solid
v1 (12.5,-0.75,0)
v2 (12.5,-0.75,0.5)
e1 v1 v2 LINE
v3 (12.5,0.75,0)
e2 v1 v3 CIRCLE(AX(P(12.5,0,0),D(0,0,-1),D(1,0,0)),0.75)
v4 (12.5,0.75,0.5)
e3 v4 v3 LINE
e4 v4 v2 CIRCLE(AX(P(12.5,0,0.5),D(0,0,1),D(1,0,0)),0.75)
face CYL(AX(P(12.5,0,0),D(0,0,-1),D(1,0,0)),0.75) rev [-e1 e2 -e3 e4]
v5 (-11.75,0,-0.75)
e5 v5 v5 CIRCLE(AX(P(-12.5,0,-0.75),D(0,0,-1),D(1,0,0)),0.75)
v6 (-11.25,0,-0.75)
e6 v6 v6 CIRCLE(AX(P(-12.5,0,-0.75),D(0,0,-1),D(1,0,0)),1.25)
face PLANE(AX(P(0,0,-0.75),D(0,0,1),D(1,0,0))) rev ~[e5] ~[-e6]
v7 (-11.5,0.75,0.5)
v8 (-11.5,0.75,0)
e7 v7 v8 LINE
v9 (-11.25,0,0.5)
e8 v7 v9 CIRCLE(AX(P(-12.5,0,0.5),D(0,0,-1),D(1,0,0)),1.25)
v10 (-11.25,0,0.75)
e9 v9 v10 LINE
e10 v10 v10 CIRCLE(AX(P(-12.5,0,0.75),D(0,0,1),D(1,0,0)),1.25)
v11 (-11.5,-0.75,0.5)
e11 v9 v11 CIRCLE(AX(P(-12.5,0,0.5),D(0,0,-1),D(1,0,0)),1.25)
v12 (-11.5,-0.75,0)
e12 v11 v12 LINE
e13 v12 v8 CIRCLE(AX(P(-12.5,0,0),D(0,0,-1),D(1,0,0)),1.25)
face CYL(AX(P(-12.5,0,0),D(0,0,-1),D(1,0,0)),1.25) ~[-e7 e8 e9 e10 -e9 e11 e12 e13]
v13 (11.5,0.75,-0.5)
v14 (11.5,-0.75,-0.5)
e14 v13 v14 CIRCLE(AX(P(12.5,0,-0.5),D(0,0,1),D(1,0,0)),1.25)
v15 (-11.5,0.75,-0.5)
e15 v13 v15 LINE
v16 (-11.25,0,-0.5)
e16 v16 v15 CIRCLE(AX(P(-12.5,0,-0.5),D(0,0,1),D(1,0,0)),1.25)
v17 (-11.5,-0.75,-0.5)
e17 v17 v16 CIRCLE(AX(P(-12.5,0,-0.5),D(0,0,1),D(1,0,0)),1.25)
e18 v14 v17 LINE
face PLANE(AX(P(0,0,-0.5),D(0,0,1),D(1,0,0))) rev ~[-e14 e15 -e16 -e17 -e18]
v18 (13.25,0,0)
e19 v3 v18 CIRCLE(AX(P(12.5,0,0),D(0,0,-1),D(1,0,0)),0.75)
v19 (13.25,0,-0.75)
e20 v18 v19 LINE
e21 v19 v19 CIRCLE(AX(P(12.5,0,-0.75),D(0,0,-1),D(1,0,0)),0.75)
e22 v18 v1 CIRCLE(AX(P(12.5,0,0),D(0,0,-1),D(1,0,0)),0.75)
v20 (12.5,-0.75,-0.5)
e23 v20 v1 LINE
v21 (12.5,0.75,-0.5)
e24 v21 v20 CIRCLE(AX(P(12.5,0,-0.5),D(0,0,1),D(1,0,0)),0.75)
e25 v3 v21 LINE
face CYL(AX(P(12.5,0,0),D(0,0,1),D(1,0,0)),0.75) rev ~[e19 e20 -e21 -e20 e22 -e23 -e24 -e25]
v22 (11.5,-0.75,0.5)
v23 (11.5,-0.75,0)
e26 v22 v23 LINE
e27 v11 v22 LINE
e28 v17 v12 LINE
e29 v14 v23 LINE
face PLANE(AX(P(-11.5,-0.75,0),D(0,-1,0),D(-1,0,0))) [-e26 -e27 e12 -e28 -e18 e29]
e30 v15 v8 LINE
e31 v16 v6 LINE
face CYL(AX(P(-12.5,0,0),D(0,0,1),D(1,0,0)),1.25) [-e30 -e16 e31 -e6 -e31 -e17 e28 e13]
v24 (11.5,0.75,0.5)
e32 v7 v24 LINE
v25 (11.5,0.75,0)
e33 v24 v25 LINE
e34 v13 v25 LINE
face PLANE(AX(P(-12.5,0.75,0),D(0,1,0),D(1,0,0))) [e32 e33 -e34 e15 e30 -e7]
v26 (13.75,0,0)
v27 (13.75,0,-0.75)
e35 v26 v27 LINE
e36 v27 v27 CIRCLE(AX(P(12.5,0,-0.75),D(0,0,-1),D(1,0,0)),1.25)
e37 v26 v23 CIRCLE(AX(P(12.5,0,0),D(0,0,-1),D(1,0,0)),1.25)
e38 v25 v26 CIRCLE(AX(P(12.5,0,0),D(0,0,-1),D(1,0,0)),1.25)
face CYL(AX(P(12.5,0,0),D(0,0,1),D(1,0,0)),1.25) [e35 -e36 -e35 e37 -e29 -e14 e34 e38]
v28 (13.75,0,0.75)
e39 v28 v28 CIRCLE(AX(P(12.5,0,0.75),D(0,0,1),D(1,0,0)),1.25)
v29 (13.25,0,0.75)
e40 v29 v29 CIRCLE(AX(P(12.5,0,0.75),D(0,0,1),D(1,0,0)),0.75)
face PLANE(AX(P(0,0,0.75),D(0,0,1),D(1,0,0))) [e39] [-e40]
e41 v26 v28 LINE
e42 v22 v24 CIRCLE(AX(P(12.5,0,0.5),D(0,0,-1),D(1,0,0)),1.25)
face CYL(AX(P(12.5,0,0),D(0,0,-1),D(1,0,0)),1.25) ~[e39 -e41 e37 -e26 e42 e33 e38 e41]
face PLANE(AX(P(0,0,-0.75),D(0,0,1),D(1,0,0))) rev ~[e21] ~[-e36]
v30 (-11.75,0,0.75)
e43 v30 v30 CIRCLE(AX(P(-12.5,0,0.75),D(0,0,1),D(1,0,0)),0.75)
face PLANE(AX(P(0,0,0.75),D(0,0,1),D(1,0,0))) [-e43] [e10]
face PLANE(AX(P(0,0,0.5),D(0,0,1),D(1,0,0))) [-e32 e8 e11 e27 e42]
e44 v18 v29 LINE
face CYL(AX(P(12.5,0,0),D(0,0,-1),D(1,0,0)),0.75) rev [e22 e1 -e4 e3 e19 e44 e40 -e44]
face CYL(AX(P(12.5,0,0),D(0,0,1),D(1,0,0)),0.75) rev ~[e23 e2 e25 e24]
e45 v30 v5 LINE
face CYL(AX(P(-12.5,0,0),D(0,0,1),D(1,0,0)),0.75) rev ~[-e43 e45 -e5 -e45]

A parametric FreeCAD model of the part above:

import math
import FreeCAD as App
import Part
import Sketcher

V = App.Vector

doc = App.newDocument("Part")
params = doc.addObject("Spreadsheet::Sheet", "Params")
for row, (alias, value) in enumerate([
    ("sketch1_diameter", "2.5 mm"),
    ("sketch1_diameter2", "1.5 mm"),
    ("pad1_length", "1.5 mm"),
    ("sketch2_radius", "0.75 mm"),
    ("sketch2_width", "25 mm"),
    ("pad2_length", "1 mm"),
], start=1):
    params.set(f"A{row}", alias)
    params.set(f"B{row}", "=" + value)
    params.setAlias(f"B{row}", alias)

body = doc.addObject("PartDesign::Body", "Body")
body.AllowCompound = True

# Sketch on XY plane
sketch1 = doc.addObject("Sketcher::SketchObject", "Sketch")
body.addObject(sketch1)
sketch1.AttachmentSupport = (doc.XY_Plane, [""])
sketch1.MapMode = "FlatFace"
sketch1.addGeometry([
    Part.Circle(V(-12.5, 0, 0), V(0, 0, 1), 1.2),
    Part.Circle(V(-12.5, 0, 0), V(0, 0, 1), 0.8),
    Part.Circle(V(12.5, 0, 0), V(0, 0, 1), 1.2),
    Part.Circle(V(12.5, 0, 0), V(0, 0, 1), 0.8),
], False)
sketch1.addConstraint([
    Sketcher.Constraint("Coincident", 1, 3, 0, 3),
    Sketcher.Constraint("Coincident", 3, 3, 2, 3),
    Sketcher.Constraint("Equal", 0, 2),
    Sketcher.Constraint("Equal", 1, 3),
    Sketcher.Constraint("Symmetric", 0, 3, 2, 3, -1, 1),
    Sketcher.Constraint("PointOnObject", 0, 3, -1),
    Sketcher.Constraint("Diameter", 0, 2.5),
    Sketcher.Constraint("Diameter", 1, 1.5),
    Sketcher.Constraint("DistanceX", 0, 3, 2, 3, 25.0),
])
sketch1.setExpression("Constraints[6]", "Params.sketch1_diameter")
sketch1.setExpression("Constraints[7]", "Params.sketch1_diameter2")
pad1 = doc.addObject("PartDesign::Pad", "Pad")
body.addObject(pad1)
pad1.Profile = sketch1
pad1.setExpression("Length", "Params.pad1_length")
pad1.Midplane = True

# Sketch on XY plane
sketch2 = doc.addObject("Sketcher::SketchObject", "Sketch001")
body.addObject(sketch2)
sketch2.AttachmentSupport = (doc.XY_Plane, [""])
sketch2.MapMode = "FlatFace"
sketch2.addGeometry([
    Part.ArcOfCircle(Part.Circle(V(-12.5, 0, 0), V(0, 0, 1), 0.8), math.radians(-90), math.radians(90)),
    Part.LineSegment(V(-12.5, -0.8, 0), V(12.5, -0.8, 0)),
    Part.ArcOfCircle(Part.Circle(V(12.5, 0, 0), V(0, 0, 1), 0.8), math.radians(90), math.radians(270)),
    Part.LineSegment(V(12.5, 0.8, 0), V(-12.5, 0.8, 0)),
], False)
sketch2.addConstraint([
    Sketcher.Constraint("Tangent", 0, 1, 1, 1),
    Sketcher.Constraint("Tangent", 1, 2, 2, 2),
    Sketcher.Constraint("Tangent", 2, 1, 3, 1),
    Sketcher.Constraint("Tangent", 3, 2, 0, 2),
    Sketcher.Constraint("Horizontal", 1),
    Sketcher.Constraint("Horizontal", 3),
    Sketcher.Constraint("Symmetric", 0, 3, 2, 3, -1, 1),
    Sketcher.Constraint("Radius", 0, 0.75),
    Sketcher.Constraint("DistanceX", 1, 1, 1, 2, 25.0),
])
sketch2.setExpression("Constraints[7]", "Params.sketch2_radius")
sketch2.setExpression("Constraints[8]", "Params.sketch2_width")
pad2 = doc.addObject("PartDesign::Pad", "Pad001")
body.addObject(pad2)
pad2.Profile = sketch2
pad2.setExpression("Length", "Params.pad2_length")
pad2.Midplane = True

doc.recompute()
